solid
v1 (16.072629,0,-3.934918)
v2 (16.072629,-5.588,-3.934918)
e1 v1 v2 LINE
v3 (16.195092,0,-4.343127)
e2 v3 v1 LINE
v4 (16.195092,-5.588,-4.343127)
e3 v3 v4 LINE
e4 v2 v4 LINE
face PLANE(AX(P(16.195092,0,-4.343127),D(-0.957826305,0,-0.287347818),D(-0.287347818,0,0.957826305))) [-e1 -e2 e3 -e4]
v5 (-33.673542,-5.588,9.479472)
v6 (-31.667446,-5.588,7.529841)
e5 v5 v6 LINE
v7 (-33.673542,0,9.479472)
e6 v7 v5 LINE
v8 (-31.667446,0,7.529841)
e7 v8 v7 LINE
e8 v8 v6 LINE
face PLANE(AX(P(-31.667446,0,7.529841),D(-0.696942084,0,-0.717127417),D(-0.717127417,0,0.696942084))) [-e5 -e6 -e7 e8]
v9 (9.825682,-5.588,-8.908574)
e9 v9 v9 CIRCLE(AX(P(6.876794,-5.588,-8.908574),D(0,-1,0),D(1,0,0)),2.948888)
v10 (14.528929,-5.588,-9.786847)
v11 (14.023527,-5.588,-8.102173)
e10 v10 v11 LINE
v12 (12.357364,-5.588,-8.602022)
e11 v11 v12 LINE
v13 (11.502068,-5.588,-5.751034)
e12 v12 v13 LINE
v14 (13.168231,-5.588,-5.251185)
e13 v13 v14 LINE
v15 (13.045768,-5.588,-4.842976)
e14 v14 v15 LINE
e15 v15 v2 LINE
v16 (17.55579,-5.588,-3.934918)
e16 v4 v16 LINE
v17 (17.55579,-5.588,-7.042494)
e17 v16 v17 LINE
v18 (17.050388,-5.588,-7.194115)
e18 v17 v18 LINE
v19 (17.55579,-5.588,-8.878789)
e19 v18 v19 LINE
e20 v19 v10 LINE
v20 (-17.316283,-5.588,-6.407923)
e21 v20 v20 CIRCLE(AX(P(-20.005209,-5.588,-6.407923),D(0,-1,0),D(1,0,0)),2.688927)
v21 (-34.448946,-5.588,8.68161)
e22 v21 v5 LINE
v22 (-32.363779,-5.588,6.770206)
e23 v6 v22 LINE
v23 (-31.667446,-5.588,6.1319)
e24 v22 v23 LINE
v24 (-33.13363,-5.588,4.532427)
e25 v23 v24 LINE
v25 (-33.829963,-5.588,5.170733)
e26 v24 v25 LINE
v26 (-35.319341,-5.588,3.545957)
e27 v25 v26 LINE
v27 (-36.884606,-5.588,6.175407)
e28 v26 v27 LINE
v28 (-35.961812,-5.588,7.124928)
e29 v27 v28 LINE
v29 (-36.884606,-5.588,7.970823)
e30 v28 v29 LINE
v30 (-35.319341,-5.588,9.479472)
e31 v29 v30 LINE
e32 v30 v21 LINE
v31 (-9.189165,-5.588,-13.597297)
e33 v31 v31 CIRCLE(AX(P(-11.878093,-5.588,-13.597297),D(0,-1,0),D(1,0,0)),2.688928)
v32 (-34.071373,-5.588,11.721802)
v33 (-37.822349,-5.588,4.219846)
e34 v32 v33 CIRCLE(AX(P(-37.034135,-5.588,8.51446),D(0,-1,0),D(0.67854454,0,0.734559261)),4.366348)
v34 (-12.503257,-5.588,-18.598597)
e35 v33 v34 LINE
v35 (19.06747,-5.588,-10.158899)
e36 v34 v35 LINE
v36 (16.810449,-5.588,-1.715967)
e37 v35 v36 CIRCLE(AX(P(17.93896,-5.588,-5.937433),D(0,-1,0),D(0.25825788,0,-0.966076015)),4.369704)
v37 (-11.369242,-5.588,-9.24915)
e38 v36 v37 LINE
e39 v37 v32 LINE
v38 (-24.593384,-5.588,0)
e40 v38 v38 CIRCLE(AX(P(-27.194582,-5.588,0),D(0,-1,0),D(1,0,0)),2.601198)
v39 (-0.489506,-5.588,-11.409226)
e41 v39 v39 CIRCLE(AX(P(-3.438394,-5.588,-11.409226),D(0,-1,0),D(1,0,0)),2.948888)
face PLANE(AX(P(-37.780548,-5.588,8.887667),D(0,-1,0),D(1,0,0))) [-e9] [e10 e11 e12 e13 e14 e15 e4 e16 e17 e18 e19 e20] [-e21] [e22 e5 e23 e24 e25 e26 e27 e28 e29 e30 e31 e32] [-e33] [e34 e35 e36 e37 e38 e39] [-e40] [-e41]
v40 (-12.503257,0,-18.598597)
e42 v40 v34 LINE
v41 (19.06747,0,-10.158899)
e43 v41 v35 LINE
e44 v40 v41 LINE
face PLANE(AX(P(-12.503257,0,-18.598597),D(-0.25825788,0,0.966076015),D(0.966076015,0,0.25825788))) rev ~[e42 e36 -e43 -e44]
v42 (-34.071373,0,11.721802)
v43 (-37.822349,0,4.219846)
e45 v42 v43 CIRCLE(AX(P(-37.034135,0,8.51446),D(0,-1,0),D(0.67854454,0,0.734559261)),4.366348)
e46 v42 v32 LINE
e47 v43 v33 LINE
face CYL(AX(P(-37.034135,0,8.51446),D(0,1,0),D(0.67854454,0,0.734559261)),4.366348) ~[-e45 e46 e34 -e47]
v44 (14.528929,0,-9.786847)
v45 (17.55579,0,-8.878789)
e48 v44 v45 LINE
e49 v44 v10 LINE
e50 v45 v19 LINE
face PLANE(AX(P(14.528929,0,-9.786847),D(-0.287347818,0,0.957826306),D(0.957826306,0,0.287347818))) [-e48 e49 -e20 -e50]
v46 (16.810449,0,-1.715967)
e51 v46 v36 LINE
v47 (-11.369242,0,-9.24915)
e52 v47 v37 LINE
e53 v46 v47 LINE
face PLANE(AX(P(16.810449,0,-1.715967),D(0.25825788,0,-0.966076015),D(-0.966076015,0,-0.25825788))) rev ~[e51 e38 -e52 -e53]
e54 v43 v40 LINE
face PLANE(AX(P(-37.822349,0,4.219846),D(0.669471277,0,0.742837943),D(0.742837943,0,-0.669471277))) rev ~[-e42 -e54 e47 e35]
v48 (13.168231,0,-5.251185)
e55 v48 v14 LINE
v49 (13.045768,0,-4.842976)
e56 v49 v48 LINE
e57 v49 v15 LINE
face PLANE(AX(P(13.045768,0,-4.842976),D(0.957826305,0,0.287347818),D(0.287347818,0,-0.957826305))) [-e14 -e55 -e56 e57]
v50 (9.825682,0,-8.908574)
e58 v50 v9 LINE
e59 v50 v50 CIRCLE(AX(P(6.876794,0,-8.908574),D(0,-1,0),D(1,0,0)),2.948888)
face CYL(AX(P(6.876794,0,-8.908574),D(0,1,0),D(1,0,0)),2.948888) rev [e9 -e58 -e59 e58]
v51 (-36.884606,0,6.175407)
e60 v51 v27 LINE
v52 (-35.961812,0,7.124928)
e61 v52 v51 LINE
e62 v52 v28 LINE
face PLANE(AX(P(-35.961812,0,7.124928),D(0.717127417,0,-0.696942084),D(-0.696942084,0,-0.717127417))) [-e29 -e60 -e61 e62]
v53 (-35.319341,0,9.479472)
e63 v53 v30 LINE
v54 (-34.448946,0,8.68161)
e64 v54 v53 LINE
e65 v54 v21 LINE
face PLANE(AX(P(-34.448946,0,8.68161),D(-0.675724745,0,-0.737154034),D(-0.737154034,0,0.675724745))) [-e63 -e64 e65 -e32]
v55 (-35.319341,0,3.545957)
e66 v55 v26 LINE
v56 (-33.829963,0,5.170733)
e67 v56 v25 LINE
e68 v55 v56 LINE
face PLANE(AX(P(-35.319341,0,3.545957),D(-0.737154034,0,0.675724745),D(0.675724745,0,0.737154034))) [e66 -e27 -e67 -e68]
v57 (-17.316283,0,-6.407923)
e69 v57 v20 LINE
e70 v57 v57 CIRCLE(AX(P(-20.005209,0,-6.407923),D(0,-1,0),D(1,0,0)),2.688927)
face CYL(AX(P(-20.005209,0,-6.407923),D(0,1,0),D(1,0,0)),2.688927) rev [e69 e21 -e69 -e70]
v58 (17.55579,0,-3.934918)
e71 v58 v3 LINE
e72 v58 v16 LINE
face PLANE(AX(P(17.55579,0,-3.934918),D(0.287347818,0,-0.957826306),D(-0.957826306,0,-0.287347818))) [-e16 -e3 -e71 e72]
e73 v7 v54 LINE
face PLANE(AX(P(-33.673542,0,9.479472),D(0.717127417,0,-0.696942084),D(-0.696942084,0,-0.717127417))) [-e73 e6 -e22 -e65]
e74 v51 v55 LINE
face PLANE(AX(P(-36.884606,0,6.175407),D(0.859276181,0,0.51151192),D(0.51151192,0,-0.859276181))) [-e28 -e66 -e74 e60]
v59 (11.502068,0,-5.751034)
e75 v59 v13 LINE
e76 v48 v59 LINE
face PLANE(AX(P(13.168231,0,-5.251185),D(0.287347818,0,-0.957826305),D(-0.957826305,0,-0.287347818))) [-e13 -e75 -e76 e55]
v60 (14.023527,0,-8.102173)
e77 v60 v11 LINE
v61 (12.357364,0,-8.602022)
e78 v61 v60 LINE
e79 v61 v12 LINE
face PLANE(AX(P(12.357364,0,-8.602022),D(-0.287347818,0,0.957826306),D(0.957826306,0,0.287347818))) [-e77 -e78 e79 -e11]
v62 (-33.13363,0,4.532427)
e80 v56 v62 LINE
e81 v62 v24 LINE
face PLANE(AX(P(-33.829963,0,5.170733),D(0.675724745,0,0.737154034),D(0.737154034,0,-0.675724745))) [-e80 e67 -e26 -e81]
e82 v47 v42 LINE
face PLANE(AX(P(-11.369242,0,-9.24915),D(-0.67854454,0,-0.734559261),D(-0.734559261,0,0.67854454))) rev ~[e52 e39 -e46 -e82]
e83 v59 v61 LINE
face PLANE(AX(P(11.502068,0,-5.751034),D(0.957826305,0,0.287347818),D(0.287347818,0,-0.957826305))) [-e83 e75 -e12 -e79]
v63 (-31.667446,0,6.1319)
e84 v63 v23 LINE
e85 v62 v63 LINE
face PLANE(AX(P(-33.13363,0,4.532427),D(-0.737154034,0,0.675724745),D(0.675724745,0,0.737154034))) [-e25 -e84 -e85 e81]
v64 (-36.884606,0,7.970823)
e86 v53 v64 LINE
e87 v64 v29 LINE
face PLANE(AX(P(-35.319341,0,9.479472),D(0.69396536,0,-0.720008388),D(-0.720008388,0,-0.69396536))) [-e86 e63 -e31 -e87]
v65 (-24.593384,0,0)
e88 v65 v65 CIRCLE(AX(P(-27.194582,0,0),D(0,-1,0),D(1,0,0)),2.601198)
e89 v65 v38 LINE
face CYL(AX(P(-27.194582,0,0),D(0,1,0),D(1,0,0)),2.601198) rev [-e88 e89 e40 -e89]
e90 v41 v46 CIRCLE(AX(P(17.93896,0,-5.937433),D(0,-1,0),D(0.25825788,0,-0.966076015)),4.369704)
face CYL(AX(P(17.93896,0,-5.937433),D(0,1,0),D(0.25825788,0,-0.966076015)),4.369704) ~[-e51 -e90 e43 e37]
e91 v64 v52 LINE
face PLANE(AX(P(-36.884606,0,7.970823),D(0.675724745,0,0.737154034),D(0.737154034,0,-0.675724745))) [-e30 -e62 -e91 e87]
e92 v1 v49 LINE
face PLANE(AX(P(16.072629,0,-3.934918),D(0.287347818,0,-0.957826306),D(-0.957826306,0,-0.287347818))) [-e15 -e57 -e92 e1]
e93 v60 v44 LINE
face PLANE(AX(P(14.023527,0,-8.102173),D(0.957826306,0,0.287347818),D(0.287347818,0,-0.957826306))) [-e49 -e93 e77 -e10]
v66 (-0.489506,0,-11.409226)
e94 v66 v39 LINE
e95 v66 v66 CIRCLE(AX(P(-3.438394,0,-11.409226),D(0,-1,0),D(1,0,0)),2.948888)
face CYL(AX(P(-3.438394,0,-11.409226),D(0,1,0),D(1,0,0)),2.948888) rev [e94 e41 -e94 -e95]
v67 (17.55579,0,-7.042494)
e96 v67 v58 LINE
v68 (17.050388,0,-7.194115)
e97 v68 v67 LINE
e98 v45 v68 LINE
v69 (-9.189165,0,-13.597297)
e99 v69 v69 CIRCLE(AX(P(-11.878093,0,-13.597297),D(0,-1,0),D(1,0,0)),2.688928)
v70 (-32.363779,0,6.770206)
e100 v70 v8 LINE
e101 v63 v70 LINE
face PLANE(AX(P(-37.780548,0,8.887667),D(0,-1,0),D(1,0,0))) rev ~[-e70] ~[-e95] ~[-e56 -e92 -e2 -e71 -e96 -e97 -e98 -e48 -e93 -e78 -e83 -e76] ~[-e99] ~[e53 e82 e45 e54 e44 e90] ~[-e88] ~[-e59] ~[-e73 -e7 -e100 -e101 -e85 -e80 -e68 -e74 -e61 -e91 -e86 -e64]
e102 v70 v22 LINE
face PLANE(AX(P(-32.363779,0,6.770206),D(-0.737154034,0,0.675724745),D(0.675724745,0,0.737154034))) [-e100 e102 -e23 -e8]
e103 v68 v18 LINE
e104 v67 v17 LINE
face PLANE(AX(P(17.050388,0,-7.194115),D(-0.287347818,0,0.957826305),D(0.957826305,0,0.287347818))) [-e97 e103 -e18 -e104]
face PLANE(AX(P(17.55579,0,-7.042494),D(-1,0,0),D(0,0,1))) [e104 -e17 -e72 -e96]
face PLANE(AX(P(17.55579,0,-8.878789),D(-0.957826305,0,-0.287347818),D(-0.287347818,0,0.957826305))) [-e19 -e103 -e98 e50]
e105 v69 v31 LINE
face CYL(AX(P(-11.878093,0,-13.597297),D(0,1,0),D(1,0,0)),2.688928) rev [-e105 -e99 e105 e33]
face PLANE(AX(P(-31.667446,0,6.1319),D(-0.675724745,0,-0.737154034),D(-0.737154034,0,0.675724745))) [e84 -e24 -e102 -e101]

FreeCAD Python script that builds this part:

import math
import FreeCAD as App
import Part
import Sketcher

V = App.Vector
Q = App.Units.Quantity


def add_polygon(sketch, points):
    """Adds a closed chain of lines whose ends are joined by coincident constraints."""
    first, n = sketch.GeometryCount, len(points)
    for a, b in zip(points, points[1:] + points[:1]):
        sketch.addGeometry(Part.LineSegment(App.Vector(*a, 0), App.Vector(*b, 0)), False)
    for i in range(n):
        sketch.addConstraint(Sketcher.Constraint("Coincident", first + i, 2, first + (i + 1) % n, 1))

doc = App.newDocument("Part")
params = doc.addObject("Spreadsheet::Sheet", "Params")
for row, (alias, value) in enumerate([
    ("pad1_length", "0.22 in"),
    ("pocket1_length", "1 in"),
], start=1):
    params.set(f"A{row}", alias)
    params.set(f"B{row}", "=" + value)
    params.setAlias(f"B{row}", alias)

body = doc.addObject("PartDesign::Body", "Body")

sketch1 = body.newObject("Sketcher::SketchObject", "Sketch")
sketch1.AttachmentSupport = (doc.getObject("XZ_Plane"), [""])
sketch1.MapMode = "FlatFace"
sketch1.addGeometry(Part.ArcOfCircle(Part.Circle(V(-37, 8.5, 0), V(0, 0, 1), 4.4), math.radians(47), math.radians(260)), False)
sketch1.addGeometry(Part.LineSegment(V(-37.8, 4.2, 0), V(-12.5, -18.6, 0)), False)
sketch1.addGeometry(Part.LineSegment(V(-12.5, -18.6, 0), V(19.1, -10.2, 0)), False)
sketch1.addGeometry(Part.ArcOfCircle(Part.Circle(V(17.9, -5.9, 0), V(0, 0, 1), 4.4), math.radians(-75), math.radians(105)), False)
sketch1.addGeometry(Part.LineSegment(V(16.8, -1.7, 0), V(-11.4, -9.2, 0)), False)
sketch1.addGeometry(Part.LineSegment(V(-11.4, -9.2, 0), V(-34.1, 11.7, 0)), False)
sketch1.addGeometry(Part.Circle(V(-11.9, -13.6, 0), V(0, 0, 1), 2.7), False)
sketch1.addGeometry(Part.Circle(V(-3.4, -11.4, 0), V(0, 0, 1), 2.9), False)
sketch1.addGeometry(Part.Circle(V(6.9, -8.9, 0), V(0, 0, 1), 2.9), False)
sketch1.addGeometry(Part.Circle(V(-20, -6.4, 0), V(0, 0, 1), 2.7), False)
sketch1.addGeometry(Part.Circle(V(-27.2, 0, 0), V(0, 0, 1), 2.6), False)
sketch1.addConstraint(Sketcher.Constraint("Coincident", 0, 2, 1, 1))
sketch1.addConstraint(Sketcher.Constraint("Coincident", 1, 2, 2, 1))
sketch1.addConstraint(Sketcher.Constraint("Tangent", 2, 2, 3, 1))
sketch1.addConstraint(Sketcher.Constraint("Tangent", 3, 2, 4, 1))
sketch1.addConstraint(Sketcher.Constraint("Coincident", 4, 2, 5, 1))
sketch1.addConstraint(Sketcher.Constraint("Tangent", 5, 2, 0, 1))
sketch1.addConstraint(Sketcher.Constraint("Equal", 7, 8))
sketch1.addConstraint(Sketcher.Constraint("Equal", 6, 9))
sketch1.addConstraint(Sketcher.Constraint("PointOnObject", 10, 3, -1))
sketch1.addConstraint(Sketcher.Constraint("Parallel", 2, 4))
sketch1.addConstraint(Sketcher.Constraint("Angle", 5, Q("137.269987 deg")))
sketch1.addConstraint(Sketcher.Constraint("Radius", 0, 4.366348))
sketch1.addConstraint(Sketcher.Constraint("Diameter", 6, 5.377856))
sketch1.addConstraint(Sketcher.Constraint("Diameter", 7, 5.897776))
sketch1.addConstraint(Sketcher.Constraint("Diameter", 10, 5.202395))
sketch1.addConstraint(Sketcher.Constraint("Radius", 3, 4.369704))
sketch1.addConstraint(Sketcher.Constraint("DistanceY", 2, 2, -1, 1, 10.158899))
sketch1.addConstraint(Sketcher.Constraint("DistanceY", -1, 1, 5, 2, 11.721802))
sketch1.addConstraint(Sketcher.Constraint("DistanceX", 6, 3, 7, 3, 8.439699))
sketch1.addConstraint(Sketcher.Constraint("DistanceY", 1, 2, 6, 3, 5.0013))
sketch1.addConstraint(Sketcher.Constraint("Distance", 2, 32.679341))
sketch1.addConstraint(Sketcher.Constraint("Distance", 4, 29.169228))
sketch1.addConstraint(Sketcher.Constraint("DistanceX", -1, 1, 3, 3, 17.93896))
sketch1.addConstraint(Sketcher.Constraint("DistanceX", 9, 3, -1, 1, 20.005209))
sketch1.addConstraint(Sketcher.Constraint("DistanceX", 10, 3, -1, 1, 27.194582))
sketch1.addConstraint(Sketcher.Constraint("DistanceX", 0, 2, -1, 1, 37.822349))
sketch1.addConstraint(Sketcher.Constraint("DistanceX", -1, 1, 2, 2, 19.06747))
sketch1.addConstraint(Sketcher.Constraint("DistanceX", 0, 3, 6, 3, 25.156042))
sketch1.addConstraint(Sketcher.Constraint("DistanceY", 6, 3, 7, 3, 2.188071))
sketch1.addConstraint(Sketcher.Constraint("DistanceX", 7, 3, 8, 3, 10.315188))
sketch1.addConstraint(Sketcher.Constraint("DistanceY", 7, 3, 8, 3, 2.500651))
sketch1.addConstraint(Sketcher.Constraint("DistanceY", 8, 3, 9, 3, 2.500651))
pad1 = body.newObject("PartDesign::Pad", "Pad")
pad1.Profile = sketch1
pad1.setExpression("Length", "Params.pad1_length")

sketch2 = body.newObject("Sketcher::SketchObject", "Sketch001")
sketch2.AttachmentSupport = (doc.getObject("XZ_Plane"), [""])
sketch2.MapMode = "FlatFace"
add_polygon(sketch2, [(-35.32, 9.48), (-36.88, 7.97), (-35.96, 7.12), (-36.88, 6.18), (-35.32, 3.55), (-33.83, 5.17), (-33.13, 4.53), (-31.67, 6.13), (-32.36, 6.77), (-31.67, 7.53), (-33.67, 9.48), (-34.45, 8.68)])
add_polygon(sketch2, [(13.17, -5.25), (11.5, -5.75), (12.36, -8.6), (14.02, -8.1), (14.53, -9.79), (17.56, -8.88), (17.05, -7.19), (17.56, -7.04), (17.56, -3.93), (16.2, -4.34), (16.07, -3.93), (13.05, -4.84)])
sketch2.addConstraint(Sketcher.Constraint("Vertical", 19))
sketch2.addConstraint(Sketcher.Constraint("Perpendicular", 1, 4))
sketch2.addConstraint(Sketcher.Constraint("Perpendicular", 4, 5))
sketch2.addConstraint(Sketcher.Constraint("Perpendicular", 5, 6))
sketch2.addConstraint(Sketcher.Constraint("Perpendicular", 6, 7))
sketch2.addConstraint(Sketcher.Constraint("Perpendicular", 7, 8))
sketch2.addConstraint(Sketcher.Constraint("Perpendicular", 2, 9))
sketch2.addConstraint(Sketcher.Constraint("Perpendicular", 9, 10))
sketch2.addConstraint(Sketcher.Constraint("Perpendicular", 8, 11))
sketch2.addConstraint(Sketcher.Constraint("Perpendicular", 12, 13))
sketch2.addConstraint(Sketcher.Constraint("Perpendicular", 13, 14))
sketch2.addConstraint(Sketcher.Constraint("Perpendicular", 14, 15))
sketch2.addConstraint(Sketcher.Constraint("Perpendicular", 15, 16))
sketch2.addConstraint(Sketcher.Constraint("Perpendicular", 16, 17))
sketch2.addConstraint(Sketcher.Constraint("Perpendicular", 17, 18))
sketch2.addConstraint(Sketcher.Constraint("Parallel", 18, 20))
sketch2.addConstraint(Sketcher.Constraint("Perpendicular", 20, 21))
sketch2.addConstraint(Sketcher.Constraint("Perpendicular", 21, 22))
sketch2.addConstraint(Sketcher.Constraint("Perpendicular", 22, 23))
sketch2.addConstraint(Sketcher.Constraint("Horizontal", 9, 2, 11, 2))
sketch2.addConstraint(Sketcher.Constraint("Horizontal", 19, 2, 21, 2))
sketch2.addConstraint(Sketcher.Constraint("Vertical", 0, 2, 2, 2))
sketch2.addConstraint(Sketcher.Constraint("Vertical", 6, 2, 8, 2))
sketch2.addConstraint(Sketcher.Constraint("Vertical", 3, 2, 11, 2))
sketch2.addConstraint(Sketcher.Constraint("Vertical", 16, 2, 18, 2))
sketch2.addConstraint(Sketcher.Constraint("Equal", 5, 7))
sketch2.addConstraint(Sketcher.Constraint("Equal", 12, 14))
sketch2.addConstraint(Sketcher.Constraint("Equal", 15, 17))
sketch2.addConstraint(Sketcher.Constraint("Equal", 16, 22))
sketch2.addConstraint(Sketcher.Constraint("Equal", 21, 23))
sketch2.addConstraint(Sketcher.Constraint("DistanceX", 2, 2, 6, 2, Q("0.2054 in")))
sketch2.addConstraint(Sketcher.Constraint("Distance", 8, 1.030498))
sketch2.addConstraint(Sketcher.Constraint("DistanceY", -1, 1, 6, 2, 6.1319))
sketch2.addConstraint(Sketcher.Constraint("DistanceY", 5, 2, 1, 2, 2.592501))
sketch2.addConstraint(Sketcher.Constraint("DistanceX", 10, 2, 8, 2, 2.781501))
sketch2.addConstraint(Sketcher.Constraint("DistanceX", 11, 2, 9, 2, 1.645798))
sketch2.addConstraint(Sketcher.Constraint("DistanceX", 20, 2, 19, 2, 1.360698))
sketch2.addConstraint(Sketcher.Constraint("DistanceX", 12, 2, 22, 2, 1.5437))
sketch2.addConstraint(Sketcher.Constraint("DistanceX", 23, 2, 21, 2, 2.904398))
sketch2.addConstraint(Sketcher.Constraint("Distance", 2, 1.324061))
sketch2.addConstraint(Sketcher.Constraint("Distance", 4, 2.204119))
sketch2.addConstraint(Sketcher.Constraint("Distance", 10, 1.11258))
sketch2.addConstraint(Sketcher.Constraint("Distance", 11, 1.18075))
sketch2.addConstraint(Sketcher.Constraint("Distance", 13, 2.976518))
sketch2.addConstraint(Sketcher.Constraint("Distance", 15, 1.758851))
sketch2.addConstraint(Sketcher.Constraint("DistanceX", 1, 2, -1, 1, 35.961812))
sketch2.addConstraint(Sketcher.Constraint("DistanceY", 13, 2, -1, 1, 8.602022))
sketch2.addConstraint(Sketcher.Constraint("DistanceX", -1, 1, 15, 2, 14.528929))
pocket1 = body.newObject("PartDesign::Pocket", "Pocket")
pocket1.Profile = sketch2
pocket1.setExpression("Length", "Params.pocket1_length")
pocket1.Reversed = True

doc.recompute()
